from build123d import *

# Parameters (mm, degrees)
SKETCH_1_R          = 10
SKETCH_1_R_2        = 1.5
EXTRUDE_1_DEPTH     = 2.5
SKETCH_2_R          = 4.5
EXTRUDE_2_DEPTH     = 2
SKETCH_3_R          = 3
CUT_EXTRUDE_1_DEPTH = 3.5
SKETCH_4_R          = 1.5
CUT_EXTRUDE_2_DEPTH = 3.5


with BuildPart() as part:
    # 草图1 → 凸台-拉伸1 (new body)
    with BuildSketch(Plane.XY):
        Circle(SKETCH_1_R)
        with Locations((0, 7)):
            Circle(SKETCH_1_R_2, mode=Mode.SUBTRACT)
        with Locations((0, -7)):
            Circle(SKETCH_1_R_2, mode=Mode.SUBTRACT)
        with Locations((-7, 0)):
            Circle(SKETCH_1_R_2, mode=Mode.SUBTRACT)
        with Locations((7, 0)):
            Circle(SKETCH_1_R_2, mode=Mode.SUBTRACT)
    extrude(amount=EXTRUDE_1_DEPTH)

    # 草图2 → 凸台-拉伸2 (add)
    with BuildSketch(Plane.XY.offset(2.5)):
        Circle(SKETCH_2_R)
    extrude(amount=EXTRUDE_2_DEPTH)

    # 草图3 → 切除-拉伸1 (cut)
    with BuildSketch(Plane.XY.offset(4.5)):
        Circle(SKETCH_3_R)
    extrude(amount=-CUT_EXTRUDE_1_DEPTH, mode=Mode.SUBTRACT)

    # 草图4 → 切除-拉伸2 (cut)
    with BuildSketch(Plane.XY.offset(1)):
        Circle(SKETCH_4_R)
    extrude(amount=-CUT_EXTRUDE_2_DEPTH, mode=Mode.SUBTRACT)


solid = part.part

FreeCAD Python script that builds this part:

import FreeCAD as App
import Part
import Sketcher

doc = App.newDocument("Part")
params = doc.addObject("Spreadsheet::Sheet", "Params")
for row, (alias, value) in enumerate([
    ("sketch1_diameter", "20 mm"),
    ("sketch1_diameter2", "3 mm"),
    ("pad1_length", "2.5 mm"),
    ("sketch2_diameter", "9 mm"),
    ("pad2_length", "2 mm"),
    ("sketch3_diameter", "6 mm"),
    ("pocket1_length", "3.5 mm"),
    ("sketch4_diameter", "3 mm"),
    ("pocket2_length", "3.5 mm"),
], start=1):
    params.set(f"A{row}", alias)
    params.set(f"B{row}", "=" + value)
    params.setAlias(f"B{row}", alias)

body = doc.addObject("PartDesign::Body", "Body")

sketch1 = body.newObject("Sketcher::SketchObject", "Sketch")
sketch1.AttachmentSupport = (doc.getObject("XY_Plane"), [""])
sketch1.MapMode = "FlatFace"
sketch1.addGeometry([
    Part.Circle(App.Vector(0, 0, 0), App.Vector(0, 0, 1), 10),
    Part.Circle(App.Vector(0, -7, 0), App.Vector(0, 0, 1), 1.5),
    Part.Circle(App.Vector(-7, 0, 0), App.Vector(0, 0, 1), 1.5),
    Part.Circle(App.Vector(7, 0, 0), App.Vector(0, 0, 1), 1.5),
    Part.Circle(App.Vector(0, 7, 0), App.Vector(0, 0, 1), 1.5),
], False)
sketch1.addConstraint([
    Sketcher.Constraint("Coincident", 0, 3, -1, 1),
    Sketcher.Constraint("Equal", 1, 2),
    Sketcher.Constraint("Equal", 2, 3),
    Sketcher.Constraint("Equal", 3, 4),
    Sketcher.Constraint("Symmetric", 2, 3, 3, 3, -1, 1),
    Sketcher.Constraint("Symmetric", 1, 3, 4, 3, -1, 1),
    Sketcher.Constraint("PointOnObject", 1, 3, -2),
    Sketcher.Constraint("PointOnObject", 2, 3, -1),
    Sketcher.Constraint("Diameter", 0, 20.0),
    Sketcher.Constraint("Diameter", 1, 3.0),
    Sketcher.Constraint("DistanceY", 1, 3, -1, 1, 7.0),
    Sketcher.Constraint("DistanceX", 2, 3, -1, 1, 7.0),
])
sketch1.setExpression("Constraints[8]", "Params.sketch1_diameter")
sketch1.setExpression("Constraints[9]", "Params.sketch1_diameter2")
pad1 = body.newObject("PartDesign::Pad", "Pad")
pad1.Profile = sketch1
pad1.setExpression("Length", "Params.pad1_length")

sketch2 = body.newObject("Sketcher::SketchObject", "Sketch001")
sketch2.AttachmentSupport = (doc.getObject("XY_Plane"), [""])
sketch2.MapMode = "FlatFace"
sketch2.AttachmentOffset = App.Placement(App.Vector(0, 0, 2.5), App.Rotation())
sketch2.addGeometry(Part.Circle(App.Vector(0, 0, 0), App.Vector(0, 0, 1), 4.5), False)
sketch2.addConstraint([
    Sketcher.Constraint("Coincident", 0, 3, -1, 1),
    Sketcher.Constraint("Diameter", 0, 9.0),
])
sketch2.setExpression("Constraints[1]", "Params.sketch2_diameter")
pad2 = body.newObject("PartDesign::Pad", "Pad001")
pad2.Profile = sketch2
pad2.setExpression("Length", "Params.pad2_length")

sketch3 = body.newObject("Sketcher::SketchObject", "Sketch002")
sketch3.AttachmentSupport = (doc.getObject("XY_Plane"), [""])
sketch3.MapMode = "FlatFace"
sketch3.AttachmentOffset = App.Placement(App.Vector(0, 0, 4.5), App.Rotation())
sketch3.addGeometry(Part.Circle(App.Vector(0, 0, 0), App.Vector(0, 0, 1), 3), False)
sketch3.addConstraint([
    Sketcher.Constraint("Coincident", 0, 3, -1, 1),
    Sketcher.Constraint("Diameter", 0, 6.0),
])
sketch3.setExpression("Constraints[1]", "Params.sketch3_diameter")
pocket1 = body.newObject("PartDesign::Pocket", "Pocket")
pocket1.Profile = sketch3
pocket1.setExpression("Length", "Params.pocket1_length")

sketch4 = body.newObject("Sketcher::SketchObject", "Sketch003")
sketch4.AttachmentSupport = (doc.getObject("XY_Plane"), [""])
sketch4.MapMode = "FlatFace"
sketch4.AttachmentOffset = App.Placement(App.Vector(0, 0, 1), App.Rotation())
sketch4.addGeometry(Part.Circle(App.Vector(0, 0, 0), App.Vector(0, 0, 1), 1.5), False)
sketch4.addConstraint([
    Sketcher.Constraint("Coincident", 0, 3, -1, 1),
    Sketcher.Constraint("Diameter", 0, 3.0),
])
sketch4.setExpression("Constraints[1]", "Params.sketch4_diameter")
pocket2 = body.newObject("PartDesign::Pocket", "Pocket001")
pocket2.Profile = sketch4
pocket2.setExpression("Length", "Params.pocket2_length")

doc.recompute()
